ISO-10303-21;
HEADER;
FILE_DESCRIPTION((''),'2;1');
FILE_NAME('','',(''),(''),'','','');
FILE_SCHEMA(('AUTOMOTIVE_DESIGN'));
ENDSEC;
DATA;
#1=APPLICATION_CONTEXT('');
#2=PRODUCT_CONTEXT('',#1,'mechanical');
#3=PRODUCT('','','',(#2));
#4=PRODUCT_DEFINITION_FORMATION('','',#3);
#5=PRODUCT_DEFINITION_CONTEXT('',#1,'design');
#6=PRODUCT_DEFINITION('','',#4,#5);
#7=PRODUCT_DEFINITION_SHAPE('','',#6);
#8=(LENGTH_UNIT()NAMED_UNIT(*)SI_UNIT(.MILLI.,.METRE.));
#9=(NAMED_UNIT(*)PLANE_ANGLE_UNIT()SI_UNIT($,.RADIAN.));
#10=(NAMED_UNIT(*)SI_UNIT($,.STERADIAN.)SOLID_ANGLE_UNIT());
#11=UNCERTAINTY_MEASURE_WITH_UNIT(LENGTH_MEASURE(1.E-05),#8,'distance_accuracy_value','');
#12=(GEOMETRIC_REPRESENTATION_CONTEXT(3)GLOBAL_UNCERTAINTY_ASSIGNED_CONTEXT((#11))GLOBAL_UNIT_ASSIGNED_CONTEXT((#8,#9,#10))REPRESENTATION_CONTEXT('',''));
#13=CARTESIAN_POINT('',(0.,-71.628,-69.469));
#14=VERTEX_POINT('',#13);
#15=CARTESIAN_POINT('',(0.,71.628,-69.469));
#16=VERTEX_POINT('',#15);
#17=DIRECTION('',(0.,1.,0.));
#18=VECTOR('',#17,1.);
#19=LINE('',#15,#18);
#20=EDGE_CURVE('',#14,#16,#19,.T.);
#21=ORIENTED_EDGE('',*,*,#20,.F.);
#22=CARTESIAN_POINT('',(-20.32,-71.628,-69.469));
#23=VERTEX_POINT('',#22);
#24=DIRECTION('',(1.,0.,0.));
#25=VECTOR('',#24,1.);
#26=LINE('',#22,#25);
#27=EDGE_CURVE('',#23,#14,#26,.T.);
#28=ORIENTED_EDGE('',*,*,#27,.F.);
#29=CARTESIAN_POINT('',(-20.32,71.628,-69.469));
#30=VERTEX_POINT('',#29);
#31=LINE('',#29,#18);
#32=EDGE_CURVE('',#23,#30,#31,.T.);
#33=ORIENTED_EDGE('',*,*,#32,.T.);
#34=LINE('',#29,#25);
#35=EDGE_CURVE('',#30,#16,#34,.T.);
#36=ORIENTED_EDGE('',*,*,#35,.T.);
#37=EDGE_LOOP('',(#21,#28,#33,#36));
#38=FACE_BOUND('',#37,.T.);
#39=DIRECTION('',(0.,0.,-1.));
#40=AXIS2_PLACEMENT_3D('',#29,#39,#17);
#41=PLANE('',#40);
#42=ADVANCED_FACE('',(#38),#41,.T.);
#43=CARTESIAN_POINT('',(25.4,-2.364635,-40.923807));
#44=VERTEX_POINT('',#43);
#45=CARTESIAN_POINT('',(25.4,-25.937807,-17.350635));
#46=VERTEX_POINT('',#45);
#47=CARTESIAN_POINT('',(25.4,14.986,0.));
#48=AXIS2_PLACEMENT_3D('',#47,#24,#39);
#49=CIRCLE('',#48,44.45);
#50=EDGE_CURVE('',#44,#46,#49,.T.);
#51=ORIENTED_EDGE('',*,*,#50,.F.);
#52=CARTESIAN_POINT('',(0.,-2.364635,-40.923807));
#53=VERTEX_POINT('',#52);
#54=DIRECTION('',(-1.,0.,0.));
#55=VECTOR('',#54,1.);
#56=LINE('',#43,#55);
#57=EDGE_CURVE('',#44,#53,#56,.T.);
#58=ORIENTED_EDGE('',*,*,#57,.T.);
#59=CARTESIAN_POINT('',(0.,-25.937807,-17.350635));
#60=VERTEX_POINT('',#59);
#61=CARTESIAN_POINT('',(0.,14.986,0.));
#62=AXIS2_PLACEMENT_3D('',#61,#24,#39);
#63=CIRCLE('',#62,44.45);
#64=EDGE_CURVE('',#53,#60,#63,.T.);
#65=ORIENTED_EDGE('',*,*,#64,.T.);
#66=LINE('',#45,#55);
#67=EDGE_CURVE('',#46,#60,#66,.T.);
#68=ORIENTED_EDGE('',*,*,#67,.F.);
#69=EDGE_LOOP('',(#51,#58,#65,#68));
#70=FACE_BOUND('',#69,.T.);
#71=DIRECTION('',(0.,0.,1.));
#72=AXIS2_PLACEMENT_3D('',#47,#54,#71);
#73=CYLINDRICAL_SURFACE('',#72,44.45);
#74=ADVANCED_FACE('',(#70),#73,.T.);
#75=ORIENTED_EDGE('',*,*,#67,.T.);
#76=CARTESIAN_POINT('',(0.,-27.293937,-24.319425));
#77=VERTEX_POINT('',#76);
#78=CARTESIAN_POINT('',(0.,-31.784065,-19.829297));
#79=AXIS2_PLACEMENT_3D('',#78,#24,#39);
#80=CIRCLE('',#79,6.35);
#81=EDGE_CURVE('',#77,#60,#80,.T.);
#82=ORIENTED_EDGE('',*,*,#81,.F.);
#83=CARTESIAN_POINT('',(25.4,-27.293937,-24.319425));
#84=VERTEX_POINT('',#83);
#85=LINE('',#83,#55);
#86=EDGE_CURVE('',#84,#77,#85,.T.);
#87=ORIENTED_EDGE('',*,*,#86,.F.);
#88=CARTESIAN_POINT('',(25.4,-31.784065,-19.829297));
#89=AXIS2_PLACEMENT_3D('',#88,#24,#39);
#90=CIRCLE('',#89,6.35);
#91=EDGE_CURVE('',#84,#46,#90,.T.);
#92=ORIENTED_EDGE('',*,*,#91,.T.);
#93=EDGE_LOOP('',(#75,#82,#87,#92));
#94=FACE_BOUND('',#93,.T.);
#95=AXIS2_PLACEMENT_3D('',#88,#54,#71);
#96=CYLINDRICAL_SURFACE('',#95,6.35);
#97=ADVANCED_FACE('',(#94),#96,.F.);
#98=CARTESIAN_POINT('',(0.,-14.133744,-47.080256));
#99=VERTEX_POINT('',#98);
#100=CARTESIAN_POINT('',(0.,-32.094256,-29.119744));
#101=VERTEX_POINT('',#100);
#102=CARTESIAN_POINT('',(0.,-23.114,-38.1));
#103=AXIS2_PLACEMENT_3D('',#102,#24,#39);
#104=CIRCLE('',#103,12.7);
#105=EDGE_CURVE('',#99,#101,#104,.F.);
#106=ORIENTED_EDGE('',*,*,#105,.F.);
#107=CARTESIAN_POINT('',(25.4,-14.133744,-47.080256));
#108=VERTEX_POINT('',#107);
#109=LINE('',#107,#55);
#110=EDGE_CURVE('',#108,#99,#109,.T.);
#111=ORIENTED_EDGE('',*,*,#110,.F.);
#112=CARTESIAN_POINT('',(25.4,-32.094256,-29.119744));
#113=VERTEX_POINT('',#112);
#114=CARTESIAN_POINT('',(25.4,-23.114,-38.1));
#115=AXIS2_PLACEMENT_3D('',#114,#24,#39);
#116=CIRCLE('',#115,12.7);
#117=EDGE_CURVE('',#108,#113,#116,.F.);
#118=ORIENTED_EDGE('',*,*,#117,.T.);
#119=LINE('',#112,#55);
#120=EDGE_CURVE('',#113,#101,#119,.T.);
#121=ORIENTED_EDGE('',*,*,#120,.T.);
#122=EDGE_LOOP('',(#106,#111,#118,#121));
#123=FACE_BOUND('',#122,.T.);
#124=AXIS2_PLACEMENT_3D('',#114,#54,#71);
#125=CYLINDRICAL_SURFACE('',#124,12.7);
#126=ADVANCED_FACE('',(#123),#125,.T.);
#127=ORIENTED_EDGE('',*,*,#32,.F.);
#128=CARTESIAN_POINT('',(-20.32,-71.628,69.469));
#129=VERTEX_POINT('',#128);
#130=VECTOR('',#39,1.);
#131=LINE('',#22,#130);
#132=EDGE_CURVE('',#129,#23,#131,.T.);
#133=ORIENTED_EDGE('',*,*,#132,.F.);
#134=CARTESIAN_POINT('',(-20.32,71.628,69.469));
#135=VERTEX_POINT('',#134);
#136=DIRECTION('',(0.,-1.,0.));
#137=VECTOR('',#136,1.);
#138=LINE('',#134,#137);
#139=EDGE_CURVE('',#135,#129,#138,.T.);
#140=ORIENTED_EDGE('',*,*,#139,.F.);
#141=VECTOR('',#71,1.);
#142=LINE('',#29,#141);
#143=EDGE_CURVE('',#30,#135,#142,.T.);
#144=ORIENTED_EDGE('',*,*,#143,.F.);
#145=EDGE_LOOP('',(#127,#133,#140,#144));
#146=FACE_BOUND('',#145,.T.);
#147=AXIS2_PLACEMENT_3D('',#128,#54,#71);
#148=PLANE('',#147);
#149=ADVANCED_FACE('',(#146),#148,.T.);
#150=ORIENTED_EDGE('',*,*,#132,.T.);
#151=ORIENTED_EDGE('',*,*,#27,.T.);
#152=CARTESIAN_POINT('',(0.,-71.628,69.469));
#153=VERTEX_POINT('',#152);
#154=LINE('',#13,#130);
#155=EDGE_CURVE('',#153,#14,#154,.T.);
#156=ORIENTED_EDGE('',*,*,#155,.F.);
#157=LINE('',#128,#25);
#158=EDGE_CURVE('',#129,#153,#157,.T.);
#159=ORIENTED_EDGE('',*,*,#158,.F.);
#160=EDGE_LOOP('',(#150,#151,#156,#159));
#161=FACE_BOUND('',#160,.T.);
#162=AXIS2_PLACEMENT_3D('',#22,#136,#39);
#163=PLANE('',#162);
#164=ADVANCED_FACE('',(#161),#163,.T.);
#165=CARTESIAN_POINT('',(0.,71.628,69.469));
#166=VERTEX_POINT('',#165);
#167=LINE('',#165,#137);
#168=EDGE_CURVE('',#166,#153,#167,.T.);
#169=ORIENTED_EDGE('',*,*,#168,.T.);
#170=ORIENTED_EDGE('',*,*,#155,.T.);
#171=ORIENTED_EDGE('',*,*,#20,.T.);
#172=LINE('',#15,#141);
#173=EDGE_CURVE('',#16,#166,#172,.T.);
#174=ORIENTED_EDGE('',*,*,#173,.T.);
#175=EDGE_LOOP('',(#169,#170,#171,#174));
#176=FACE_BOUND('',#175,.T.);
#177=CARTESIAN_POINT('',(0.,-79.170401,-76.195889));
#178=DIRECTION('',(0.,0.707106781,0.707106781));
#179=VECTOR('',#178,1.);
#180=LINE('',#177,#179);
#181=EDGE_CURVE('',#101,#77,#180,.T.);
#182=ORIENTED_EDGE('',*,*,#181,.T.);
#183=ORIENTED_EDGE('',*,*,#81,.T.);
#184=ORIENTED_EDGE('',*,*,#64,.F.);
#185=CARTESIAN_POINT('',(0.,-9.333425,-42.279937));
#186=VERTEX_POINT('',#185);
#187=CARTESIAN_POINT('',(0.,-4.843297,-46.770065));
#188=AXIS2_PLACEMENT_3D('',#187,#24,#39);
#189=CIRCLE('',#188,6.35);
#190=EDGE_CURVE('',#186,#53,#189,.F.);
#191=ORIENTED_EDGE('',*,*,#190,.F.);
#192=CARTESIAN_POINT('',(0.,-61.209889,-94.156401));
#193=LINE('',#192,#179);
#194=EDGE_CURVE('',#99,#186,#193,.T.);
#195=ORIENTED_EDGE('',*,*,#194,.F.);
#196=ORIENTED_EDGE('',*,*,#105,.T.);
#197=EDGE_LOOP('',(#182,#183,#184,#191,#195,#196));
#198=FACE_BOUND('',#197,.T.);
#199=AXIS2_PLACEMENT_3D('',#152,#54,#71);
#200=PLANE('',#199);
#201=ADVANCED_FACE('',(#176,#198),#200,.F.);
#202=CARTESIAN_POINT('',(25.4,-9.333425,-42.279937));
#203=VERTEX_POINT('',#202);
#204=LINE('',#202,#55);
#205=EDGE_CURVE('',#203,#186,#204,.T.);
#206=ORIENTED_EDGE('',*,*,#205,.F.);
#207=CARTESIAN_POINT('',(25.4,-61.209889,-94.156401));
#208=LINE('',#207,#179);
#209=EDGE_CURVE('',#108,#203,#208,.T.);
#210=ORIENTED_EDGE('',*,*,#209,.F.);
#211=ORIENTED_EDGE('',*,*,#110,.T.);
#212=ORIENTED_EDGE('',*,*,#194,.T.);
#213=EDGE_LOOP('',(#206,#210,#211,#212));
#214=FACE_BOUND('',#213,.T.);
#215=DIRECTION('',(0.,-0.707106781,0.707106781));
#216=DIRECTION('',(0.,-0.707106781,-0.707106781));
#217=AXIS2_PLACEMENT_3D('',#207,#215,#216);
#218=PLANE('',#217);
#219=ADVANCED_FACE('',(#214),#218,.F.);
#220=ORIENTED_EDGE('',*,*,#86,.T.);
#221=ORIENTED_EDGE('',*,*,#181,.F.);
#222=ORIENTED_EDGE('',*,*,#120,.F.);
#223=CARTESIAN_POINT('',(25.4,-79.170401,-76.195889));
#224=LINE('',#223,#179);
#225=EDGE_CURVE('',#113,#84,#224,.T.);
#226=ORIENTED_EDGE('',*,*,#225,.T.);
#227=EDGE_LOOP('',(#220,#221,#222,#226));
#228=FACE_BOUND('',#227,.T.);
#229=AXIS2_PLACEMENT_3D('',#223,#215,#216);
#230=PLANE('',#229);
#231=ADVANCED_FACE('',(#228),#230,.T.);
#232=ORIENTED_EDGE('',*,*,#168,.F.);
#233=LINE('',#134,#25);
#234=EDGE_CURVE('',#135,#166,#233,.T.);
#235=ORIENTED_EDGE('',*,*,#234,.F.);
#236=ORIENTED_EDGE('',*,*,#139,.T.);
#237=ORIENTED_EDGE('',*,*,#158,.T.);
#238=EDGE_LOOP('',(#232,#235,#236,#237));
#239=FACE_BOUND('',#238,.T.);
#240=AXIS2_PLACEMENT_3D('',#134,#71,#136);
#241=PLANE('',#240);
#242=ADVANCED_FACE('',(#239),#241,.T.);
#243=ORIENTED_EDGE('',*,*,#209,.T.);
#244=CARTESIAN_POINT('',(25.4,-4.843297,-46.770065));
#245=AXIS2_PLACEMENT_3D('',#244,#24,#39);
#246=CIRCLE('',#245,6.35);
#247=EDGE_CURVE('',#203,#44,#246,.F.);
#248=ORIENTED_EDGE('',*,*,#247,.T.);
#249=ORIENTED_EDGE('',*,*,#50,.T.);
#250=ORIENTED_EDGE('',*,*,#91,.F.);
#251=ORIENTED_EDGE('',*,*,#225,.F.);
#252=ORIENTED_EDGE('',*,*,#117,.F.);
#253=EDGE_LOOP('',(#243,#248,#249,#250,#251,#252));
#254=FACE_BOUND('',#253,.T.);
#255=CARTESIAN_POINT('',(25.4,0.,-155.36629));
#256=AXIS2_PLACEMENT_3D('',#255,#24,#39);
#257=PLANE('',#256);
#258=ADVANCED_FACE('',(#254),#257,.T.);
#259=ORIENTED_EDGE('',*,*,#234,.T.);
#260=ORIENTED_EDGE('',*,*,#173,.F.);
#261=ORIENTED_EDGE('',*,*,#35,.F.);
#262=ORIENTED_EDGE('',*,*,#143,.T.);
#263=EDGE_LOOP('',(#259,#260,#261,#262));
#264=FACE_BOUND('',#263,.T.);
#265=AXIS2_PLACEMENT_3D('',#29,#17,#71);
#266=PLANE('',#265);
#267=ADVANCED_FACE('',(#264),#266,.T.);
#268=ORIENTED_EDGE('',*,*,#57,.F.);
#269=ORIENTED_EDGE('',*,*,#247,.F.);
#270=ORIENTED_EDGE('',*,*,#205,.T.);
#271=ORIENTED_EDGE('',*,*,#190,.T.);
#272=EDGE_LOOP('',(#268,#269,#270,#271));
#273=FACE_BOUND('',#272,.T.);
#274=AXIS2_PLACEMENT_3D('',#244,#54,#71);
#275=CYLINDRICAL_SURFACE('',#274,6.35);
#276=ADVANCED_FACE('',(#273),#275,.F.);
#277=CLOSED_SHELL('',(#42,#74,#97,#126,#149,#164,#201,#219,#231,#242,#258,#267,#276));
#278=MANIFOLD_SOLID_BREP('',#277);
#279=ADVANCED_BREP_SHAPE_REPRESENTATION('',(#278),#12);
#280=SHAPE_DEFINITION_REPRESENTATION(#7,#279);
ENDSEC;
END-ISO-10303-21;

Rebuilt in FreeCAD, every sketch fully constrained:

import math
import FreeCAD as App
import Part
import Sketcher

V = App.Vector
Q = App.Units.Quantity


def add_polygon(sketch, points):
    """Adds a closed chain of lines whose ends are joined by coincident constraints."""
    first, n = sketch.GeometryCount, len(points)
    for a, b in zip(points, points[1:] + points[:1]):
        sketch.addGeometry(Part.LineSegment(App.Vector(*a, 0), App.Vector(*b, 0)), False)
    for i in range(n):
        sketch.addConstraint(Sketcher.Constraint("Coincident", first + i, 2, first + (i + 1) % n, 1))

doc = App.newDocument("Part")
params = doc.addObject("Spreadsheet::Sheet", "Params")
for row, (alias, value) in enumerate([
    ("sketch1_width", "5.64 in"),
    ("sketch1_height", "5.47 in"),
    ("pad1_length", "0.8 in"),
    ("sketch2_radius", "0.5 in"),
    ("sketch2_radius2", "0.25 in"),
    ("sketch2_radius3", "1.75 in"),
    ("pad2_length", "1 in"),
], start=1):
    params.set(f"A{row}", alias)
    params.set(f"B{row}", "=" + value)
    params.setAlias(f"B{row}", alias)

body = doc.addObject("PartDesign::Body", "Body")

# Sketch on YZ plane
sketch1 = body.newObject("Sketcher::SketchObject", "Sketch")
sketch1.AttachmentSupport = (doc.getObject("YZ_Plane"), [""])
sketch1.MapMode = "FlatFace"
add_polygon(sketch1, [(72, 69), (-72, 69), (-72, -69), (72, -69)])  # lines 0-3
sketch1.addConstraint(Sketcher.Constraint("Horizontal", 0))
sketch1.addConstraint(Sketcher.Constraint("Vertical", 1))
sketch1.addConstraint(Sketcher.Constraint("Horizontal", 2))
sketch1.addConstraint(Sketcher.Constraint("Vertical", 3))
sketch1.addConstraint(Sketcher.Constraint("Symmetric", 0, 2, 2, 2, -1, 1))
sketch1.addConstraint(Sketcher.Constraint("DistanceX", 0, 2, 0, 1, Q("5.64 in")))
sketch1.addConstraint(Sketcher.Constraint("DistanceY", 1, 2, 1, 1, Q("5.47 in")))
sketch1.setExpression("Constraints[9]", "Params.sketch1_width")
sketch1.setExpression("Constraints[10]", "Params.sketch1_height")
pad1 = body.newObject("PartDesign::Pad", "Pad")
pad1.Profile = sketch1
pad1.setExpression("Length", "Params.pad1_length")
pad1.Reversed = True

# Sketch on YZ plane
sketch2 = body.newObject("Sketcher::SketchObject", "Sketch001")
sketch2.AttachmentSupport = (doc.getObject("YZ_Plane"), [""])
sketch2.MapMode = "FlatFace"
sketch2.addGeometry(Part.LineSegment(V(-14, -47, 0), V(-9, -42, 0)), False)
sketch2.addGeometry(Part.ArcOfCircle(Part.Circle(V(-5, -47, 0), V(0, 0, 1), 6), math.radians(67), math.radians(135)), False)
sketch2.addGeometry(Part.ArcOfCircle(Part.Circle(V(15, 0, 0), V(0, 0, 1), 44), math.radians(-113), math.radians(203)), False)
sketch2.addGeometry(Part.ArcOfCircle(Part.Circle(V(-32, -20, 0), V(0, 0, 1), 6), math.radians(-45), math.radians(23)), False)
sketch2.addGeometry(Part.LineSegment(V(-27, -24, 0), V(-32, -29, 0)), False)
sketch2.addGeometry(Part.ArcOfCircle(Part.Circle(V(-23, -38, 0), V(0, 0, 1), 13), math.radians(135), math.radians(315)), False)
sketch2.addConstraint(Sketcher.Constraint("Tangent", 0, 2, 1, 2))
sketch2.addConstraint(Sketcher.Constraint("Tangent", 1, 1, 2, 1))
sketch2.addConstraint(Sketcher.Constraint("Tangent", 2, 2, 3, 2))
sketch2.addConstraint(Sketcher.Constraint("Tangent", 3, 1, 4, 1))
sketch2.addConstraint(Sketcher.Constraint("Tangent", 4, 2, 5, 1))
sketch2.addConstraint(Sketcher.Constraint("Tangent", 5, 2, 0, 1))
sketch2.addConstraint(Sketcher.Constraint("Equal", 1, 3))
sketch2.addConstraint(Sketcher.Constraint("PointOnObject", 2, 3, -1))
sketch2.addConstraint(Sketcher.Constraint("Parallel", 0, 4))
sketch2.addConstraint(Sketcher.Constraint("Equal", 0, 4))
sketch2.addConstraint(Sketcher.Constraint("Radius", 5, Q("0.5 in")))
sketch2.addConstraint(Sketcher.Constraint("Radius", 1, Q("0.25 in")))
sketch2.addConstraint(Sketcher.Constraint("Radius", 2, Q("1.75 in")))
sketch2.addConstraint(Sketcher.Constraint("Angle", 0, Q("45 deg")))
sketch2.addConstraint(Sketcher.Constraint("DistanceY", 5, 3, -1, 1, Q("1.5 in")))
sketch2.addConstraint(Sketcher.Constraint("DistanceX", -1, 1, 2, 3, Q("0.59 in")))
sketch2.setExpression("Constraints[10]", "Params.sketch2_radius")
sketch2.setExpression("Constraints[11]", "Params.sketch2_radius2")
sketch2.setExpression("Constraints[12]", "Params.sketch2_radius3")
pad2 = body.newObject("PartDesign::Pad", "Pad001")
pad2.Profile = sketch2
pad2.setExpression("Length", "Params.pad2_length")

doc.recompute()
